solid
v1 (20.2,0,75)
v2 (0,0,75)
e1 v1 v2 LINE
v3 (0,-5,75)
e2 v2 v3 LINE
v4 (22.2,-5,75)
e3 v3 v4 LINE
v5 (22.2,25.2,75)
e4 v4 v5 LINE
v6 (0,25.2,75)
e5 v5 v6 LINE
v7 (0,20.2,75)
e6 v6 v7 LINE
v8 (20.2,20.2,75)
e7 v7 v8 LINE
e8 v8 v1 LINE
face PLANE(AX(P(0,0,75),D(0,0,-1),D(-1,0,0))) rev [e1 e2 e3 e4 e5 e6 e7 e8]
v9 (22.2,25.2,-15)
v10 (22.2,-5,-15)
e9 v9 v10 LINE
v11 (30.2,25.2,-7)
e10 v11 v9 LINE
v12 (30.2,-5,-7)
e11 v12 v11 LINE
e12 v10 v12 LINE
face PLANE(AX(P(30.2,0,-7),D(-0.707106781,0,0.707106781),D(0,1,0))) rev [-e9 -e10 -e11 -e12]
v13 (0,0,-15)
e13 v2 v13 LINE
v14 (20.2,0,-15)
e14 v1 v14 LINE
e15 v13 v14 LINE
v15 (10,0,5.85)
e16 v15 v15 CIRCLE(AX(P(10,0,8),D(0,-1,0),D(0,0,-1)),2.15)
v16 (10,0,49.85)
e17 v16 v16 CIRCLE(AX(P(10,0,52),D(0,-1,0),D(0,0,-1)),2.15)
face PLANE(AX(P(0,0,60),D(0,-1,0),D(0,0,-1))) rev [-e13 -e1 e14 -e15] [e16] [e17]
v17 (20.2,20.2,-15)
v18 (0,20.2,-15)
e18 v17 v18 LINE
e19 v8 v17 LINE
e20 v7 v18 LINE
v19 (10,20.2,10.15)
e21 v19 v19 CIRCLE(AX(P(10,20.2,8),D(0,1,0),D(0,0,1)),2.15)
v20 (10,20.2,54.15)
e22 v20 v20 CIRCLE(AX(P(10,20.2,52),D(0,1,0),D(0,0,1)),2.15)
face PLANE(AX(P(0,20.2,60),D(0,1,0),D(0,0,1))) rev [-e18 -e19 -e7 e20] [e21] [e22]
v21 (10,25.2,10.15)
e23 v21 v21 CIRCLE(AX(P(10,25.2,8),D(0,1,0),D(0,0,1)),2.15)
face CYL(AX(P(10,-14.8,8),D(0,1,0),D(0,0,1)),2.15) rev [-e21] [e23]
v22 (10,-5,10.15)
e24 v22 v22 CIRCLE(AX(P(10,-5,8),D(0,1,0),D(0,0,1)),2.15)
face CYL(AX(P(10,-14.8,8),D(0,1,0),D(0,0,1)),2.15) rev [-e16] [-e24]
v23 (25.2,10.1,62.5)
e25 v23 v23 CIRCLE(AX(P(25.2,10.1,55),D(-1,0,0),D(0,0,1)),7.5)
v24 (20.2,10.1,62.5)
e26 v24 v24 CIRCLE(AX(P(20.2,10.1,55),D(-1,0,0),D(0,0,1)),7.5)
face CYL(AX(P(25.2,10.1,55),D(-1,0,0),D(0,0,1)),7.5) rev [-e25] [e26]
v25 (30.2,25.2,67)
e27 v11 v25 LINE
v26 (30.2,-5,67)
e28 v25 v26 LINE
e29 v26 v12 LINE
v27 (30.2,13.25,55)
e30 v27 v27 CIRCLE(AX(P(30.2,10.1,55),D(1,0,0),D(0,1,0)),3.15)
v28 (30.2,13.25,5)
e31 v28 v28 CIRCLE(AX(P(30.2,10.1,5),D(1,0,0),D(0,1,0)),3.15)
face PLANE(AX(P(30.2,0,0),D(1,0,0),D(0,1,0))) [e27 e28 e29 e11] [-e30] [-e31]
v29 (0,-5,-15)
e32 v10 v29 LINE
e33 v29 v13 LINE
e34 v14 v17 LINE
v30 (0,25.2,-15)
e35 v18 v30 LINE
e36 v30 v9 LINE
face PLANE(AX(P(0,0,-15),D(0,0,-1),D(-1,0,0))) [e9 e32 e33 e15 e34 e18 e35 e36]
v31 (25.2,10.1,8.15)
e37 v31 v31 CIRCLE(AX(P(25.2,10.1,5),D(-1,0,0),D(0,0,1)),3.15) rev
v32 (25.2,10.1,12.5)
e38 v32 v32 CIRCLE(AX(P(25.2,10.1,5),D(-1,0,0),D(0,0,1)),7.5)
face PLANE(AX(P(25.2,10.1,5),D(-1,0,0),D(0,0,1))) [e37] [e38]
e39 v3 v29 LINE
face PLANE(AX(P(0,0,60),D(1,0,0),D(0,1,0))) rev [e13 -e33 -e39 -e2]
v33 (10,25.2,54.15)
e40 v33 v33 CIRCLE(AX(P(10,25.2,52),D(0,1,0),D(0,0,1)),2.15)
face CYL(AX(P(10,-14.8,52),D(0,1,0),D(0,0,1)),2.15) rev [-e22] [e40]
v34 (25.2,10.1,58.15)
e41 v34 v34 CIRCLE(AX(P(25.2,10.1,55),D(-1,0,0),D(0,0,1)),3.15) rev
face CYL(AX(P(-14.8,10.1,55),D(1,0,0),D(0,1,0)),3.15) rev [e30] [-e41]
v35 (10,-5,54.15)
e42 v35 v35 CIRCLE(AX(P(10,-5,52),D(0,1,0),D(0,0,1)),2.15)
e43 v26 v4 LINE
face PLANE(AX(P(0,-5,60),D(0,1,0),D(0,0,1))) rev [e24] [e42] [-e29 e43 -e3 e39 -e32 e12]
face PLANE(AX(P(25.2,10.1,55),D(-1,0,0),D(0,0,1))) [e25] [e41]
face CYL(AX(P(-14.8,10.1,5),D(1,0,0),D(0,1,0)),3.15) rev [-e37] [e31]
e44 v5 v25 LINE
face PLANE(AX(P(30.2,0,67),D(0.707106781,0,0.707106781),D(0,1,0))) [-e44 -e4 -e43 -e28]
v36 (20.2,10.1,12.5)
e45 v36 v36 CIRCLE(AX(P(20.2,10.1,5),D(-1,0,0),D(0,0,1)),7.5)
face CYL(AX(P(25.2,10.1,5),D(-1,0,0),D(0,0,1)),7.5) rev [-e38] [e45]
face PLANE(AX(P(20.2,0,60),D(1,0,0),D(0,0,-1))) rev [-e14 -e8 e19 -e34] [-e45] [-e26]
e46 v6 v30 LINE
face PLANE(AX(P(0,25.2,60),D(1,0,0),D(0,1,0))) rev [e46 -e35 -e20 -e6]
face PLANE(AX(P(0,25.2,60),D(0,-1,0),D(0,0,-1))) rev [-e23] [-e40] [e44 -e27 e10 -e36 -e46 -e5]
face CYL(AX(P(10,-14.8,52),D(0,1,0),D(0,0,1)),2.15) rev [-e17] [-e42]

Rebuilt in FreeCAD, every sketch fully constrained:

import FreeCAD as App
import Part
import Sketcher


def edges_at(feature, points):
    """Names of the edges that pass closest to the given points."""
    edges = feature.Shape.Edges
    near = lambda p: min(range(len(edges)), key=lambda i: edges[i].distToShape(Part.Vertex(*p))[0])
    return sorted({f"Edge{near(p) + 1}" for p in points})

doc = App.newDocument("Part")
body = doc.addObject("PartDesign::Body", "Body")

# Sketch on XY plane
sketch1 = doc.addObject("Sketcher::SketchObject", "Sketch")
body.addObject(sketch1)
sketch1.AttachmentSupport = (doc.XY_Plane, [""])
sketch1.MapMode = "FlatFace"
sketch1.addGeometry(Part.LineSegment(App.Vector(0, 0, 0), App.Vector(0, -5, 0)), False)
sketch1.addGeometry(Part.LineSegment(App.Vector(0, -5, 0), App.Vector(25, -5, 0)), False)
sketch1.addGeometry(Part.LineSegment(App.Vector(25, -5, 0), App.Vector(25, 25, 0)), False)
sketch1.addGeometry(Part.LineSegment(App.Vector(25, 25, 0), App.Vector(0, 25, 0)), False)
sketch1.addGeometry(Part.LineSegment(App.Vector(0, 25, 0), App.Vector(0, 20, 0)), False)
sketch1.addGeometry(Part.LineSegment(App.Vector(0, 20, 0), App.Vector(20, 20, 0)), False)
sketch1.addGeometry(Part.LineSegment(App.Vector(20, 20, 0), App.Vector(20, 0, 0)), False)
sketch1.addGeometry(Part.LineSegment(App.Vector(20, 0, 0), App.Vector(0, 0, 0)), False)
sketch1.addConstraint(Sketcher.Constraint("Coincident", 0, 2, 1, 1))
sketch1.addConstraint(Sketcher.Constraint("Coincident", 1, 2, 2, 1))
sketch1.addConstraint(Sketcher.Constraint("Coincident", 2, 2, 3, 1))
sketch1.addConstraint(Sketcher.Constraint("Coincident", 3, 2, 4, 1))
sketch1.addConstraint(Sketcher.Constraint("Coincident", 4, 2, 5, 1))
sketch1.addConstraint(Sketcher.Constraint("Coincident", 5, 2, 6, 1))
sketch1.addConstraint(Sketcher.Constraint("Coincident", 6, 2, 7, 1))
sketch1.addConstraint(Sketcher.Constraint("Coincident", 7, 2, 0, 1))
sketch1.addConstraint(Sketcher.Constraint("Vertical", 0))
sketch1.addConstraint(Sketcher.Constraint("Horizontal", 1))
sketch1.addConstraint(Sketcher.Constraint("Vertical", 2))
sketch1.addConstraint(Sketcher.Constraint("Horizontal", 3))
sketch1.addConstraint(Sketcher.Constraint("Vertical", 4))
sketch1.addConstraint(Sketcher.Constraint("Horizontal", 5))
sketch1.addConstraint(Sketcher.Constraint("Vertical", 6))
sketch1.addConstraint(Sketcher.Constraint("Horizontal", 7))
sketch1.addConstraint(Sketcher.Constraint("Coincident", 7, 2, -1, 1))
sketch1.addConstraint(Sketcher.Constraint("PointOnObject", 3, 2, -2))
sketch1.addConstraint(Sketcher.Constraint("Equal", 0, 4))
sketch1.addConstraint(Sketcher.Constraint("Equal", 7, 6))
sketch1.addConstraint(Sketcher.Constraint("DistanceY", 0, 2, 0, 1, 5.0))
sketch1.addConstraint(Sketcher.Constraint("DistanceX", 1, 1, 1, 2, 25.2))
sketch1.addConstraint(Sketcher.Constraint("DistanceX", 5, 1, 5, 2, 20.2))
pad1 = doc.addObject("PartDesign::Pad", "Pad")
body.addObject(pad1)
pad1.Profile = sketch1
pad1.Length = 60

# Sketch on XZ plane
sketch2 = doc.addObject("Sketcher::SketchObject", "Sketch001")
body.addObject(sketch2)
sketch2.AttachmentSupport = (doc.XZ_Plane, [""])
sketch2.MapMode = "FlatFace"
sketch2.AttachmentOffset = App.Placement(App.Vector(0, 0, -25.2), App.Rotation())
sketch2.addGeometry(Part.Circle(App.Vector(10, 8, 0), App.Vector(0, 0, 1), 2.1), False)
sketch2.addGeometry(Part.Circle(App.Vector(10, 52, 0), App.Vector(0, 0, 1), 2.1), False)
sketch2.addConstraint(Sketcher.Constraint("Equal", 0, 1))
sketch2.addConstraint(Sketcher.Constraint("Vertical", 0, 3, 1, 3))
sketch2.addConstraint(Sketcher.Constraint("Diameter", 0, 4.3))
sketch2.addConstraint(Sketcher.Constraint("DistanceX", -1, 1, 0, 3, 10.0))
sketch2.addConstraint(Sketcher.Constraint("DistanceY", -1, 1, 0, 3, 8.0))
sketch2.addConstraint(Sketcher.Constraint("DistanceY", -1, 1, 1, 3, 52.0))
pocket1 = doc.addObject("PartDesign::Pocket", "Pocket")
body.addObject(pocket1)
pocket1.Profile = sketch2
pocket1.Length = 40
pocket1.Reversed = True

# Sketch on YZ plane
sketch3 = doc.addObject("Sketcher::SketchObject", "Sketch002")
body.addObject(sketch3)
sketch3.AttachmentSupport = (doc.YZ_Plane, [""])
sketch3.MapMode = "FlatFace"
sketch3.AttachmentOffset = App.Placement(App.Vector(0, 0, 25.2), App.Rotation())
sketch3.addGeometry(Part.Circle(App.Vector(10.1, 55, 0), App.Vector(0, 0, 1), 3.1), False)
sketch3.addGeometry(Part.Circle(App.Vector(10.1, 5, 0), App.Vector(0, 0, 1), 3.1), False)
sketch3.addConstraint(Sketcher.Constraint("Equal", 0, 1))
sketch3.addConstraint(Sketcher.Constraint("Vertical", 0, 3, 1, 3))
sketch3.addConstraint(Sketcher.Constraint("Diameter", 0, 6.3))
sketch3.addConstraint(Sketcher.Constraint("DistanceY", -1, 1, 0, 3, 55.0))
sketch3.addConstraint(Sketcher.Constraint("DistanceY", -1, 1, 1, 3, 5.0))
sketch3.addConstraint(Sketcher.Constraint("DistanceX", -1, 1, 0, 3, 10.1))
pocket2 = doc.addObject("PartDesign::Pocket", "Pocket001")
body.addObject(pocket2)
pocket2.Profile = sketch3
pocket2.Length = 40

# Sketch on XY plane
sketch4 = doc.addObject("Sketcher::SketchObject", "Sketch003")
body.addObject(sketch4)
sketch4.AttachmentSupport = (doc.XY_Plane, [""])
sketch4.MapMode = "FlatFace"
sketch4.addGeometry(Part.LineSegment(App.Vector(20, 20, 0), App.Vector(0, 20, 0)), False)
sketch4.addGeometry(Part.LineSegment(App.Vector(0, 20, 0), App.Vector(0, 25, 0)), False)
sketch4.addGeometry(Part.LineSegment(App.Vector(0, 25, 0), App.Vector(25, 25, 0)), False)
sketch4.addGeometry(Part.LineSegment(App.Vector(25, 25, 0), App.Vector(25, -5, 0)), False)
sketch4.addGeometry(Part.LineSegment(App.Vector(25, -5, 0), App.Vector(0, -5, 0)), False)
sketch4.addGeometry(Part.LineSegment(App.Vector(0, -5, 0), App.Vector(0, 0, 0)), False)
sketch4.addGeometry(Part.LineSegment(App.Vector(0, 0, 0), App.Vector(20, 0, 0)), False)
sketch4.addGeometry(Part.LineSegment(App.Vector(20, 0, 0), App.Vector(20, 20, 0)), False)
sketch4.addConstraint(Sketcher.Constraint("Coincident", 0, 2, 1, 1))
sketch4.addConstraint(Sketcher.Constraint("Coincident", 1, 2, 2, 1))
sketch4.addConstraint(Sketcher.Constraint("Coincident", 2, 2, 3, 1))
sketch4.addConstraint(Sketcher.Constraint("Coincident", 3, 2, 4, 1))
sketch4.addConstraint(Sketcher.Constraint("Coincident", 4, 2, 5, 1))
sketch4.addConstraint(Sketcher.Constraint("Coincident", 5, 2, 6, 1))
sketch4.addConstraint(Sketcher.Constraint("Coincident", 6, 2, 7, 1))
sketch4.addConstraint(Sketcher.Constraint("Coincident", 7, 2, 0, 1))
sketch4.addConstraint(Sketcher.Constraint("Horizontal", 0))
sketch4.addConstraint(Sketcher.Constraint("Vertical", 1))
sketch4.addConstraint(Sketcher.Constraint("Horizontal", 2))
sketch4.addConstraint(Sketcher.Constraint("Vertical", 3))
sketch4.addConstraint(Sketcher.Constraint("Horizontal", 4))
sketch4.addConstraint(Sketcher.Constraint("Vertical", 5))
sketch4.addConstraint(Sketcher.Constraint("Horizontal", 6))
sketch4.addConstraint(Sketcher.Constraint("Vertical", 7))
sketch4.addConstraint(Sketcher.Constraint("Coincident", 5, 2, -1, 1))
sketch4.addConstraint(Sketcher.Constraint("PointOnObject", 0, 2, -2))
sketch4.addConstraint(Sketcher.Constraint("Equal", 1, 5))
sketch4.addConstraint(Sketcher.Constraint("Equal", 6, 7))
sketch4.addConstraint(Sketcher.Constraint("DistanceY", 1, 1, 1, 2, 5.0))
sketch4.addConstraint(Sketcher.Constraint("DistanceX", 0, 2, 0, 1, 20.2))
sketch4.addConstraint(Sketcher.Constraint("DistanceX", 2, 1, 2, 2, 25.2))
pad2 = doc.addObject("PartDesign::Pad", "Pad001")
body.addObject(pad2)
pad2.Profile = sketch4
pad2.Length = 15
pad2.Reversed = True

# Sketch on XY plane
sketch5 = doc.addObject("Sketcher::SketchObject", "Sketch004")
body.addObject(sketch5)
sketch5.AttachmentSupport = (doc.XY_Plane, [""])
sketch5.MapMode = "FlatFace"
sketch5.AttachmentOffset = App.Placement(App.Vector(0, 0, 60), App.Rotation())
sketch5.addGeometry(Part.LineSegment(App.Vector(20, 0, 0), App.Vector(0, 0, 0)), False)
sketch5.addGeometry(Part.LineSegment(App.Vector(0, 0, 0), App.Vector(0, -5, 0)), False)
sketch5.addGeometry(Part.LineSegment(App.Vector(0, -5, 0), App.Vector(25, -5, 0)), False)
sketch5.addGeometry(Part.LineSegment(App.Vector(25, -5, 0), App.Vector(25, 25, 0)), False)
sketch5.addGeometry(Part.LineSegment(App.Vector(25, 25, 0), App.Vector(0, 25, 0)), False)
sketch5.addGeometry(Part.LineSegment(App.Vector(0, 25, 0), App.Vector(0, 20, 0)), False)
sketch5.addGeometry(Part.LineSegment(App.Vector(0, 20, 0), App.Vector(20, 20, 0)), False)
sketch5.addGeometry(Part.LineSegment(App.Vector(20, 20, 0), App.Vector(20, 0, 0)), False)
sketch5.addConstraint(Sketcher.Constraint("Coincident", 0, 2, 1, 1))
sketch5.addConstraint(Sketcher.Constraint("Coincident", 1, 2, 2, 1))
sketch5.addConstraint(Sketcher.Constraint("Coincident", 2, 2, 3, 1))
sketch5.addConstraint(Sketcher.Constraint("Coincident", 3, 2, 4, 1))
sketch5.addConstraint(Sketcher.Constraint("Coincident", 4, 2, 5, 1))
sketch5.addConstraint(Sketcher.Constraint("Coincident", 5, 2, 6, 1))
sketch5.addConstraint(Sketcher.Constraint("Coincident", 6, 2, 7, 1))
sketch5.addConstraint(Sketcher.Constraint("Coincident", 7, 2, 0, 1))
sketch5.addConstraint(Sketcher.Constraint("Horizontal", 0))
sketch5.addConstraint(Sketcher.Constraint("Vertical", 1))
sketch5.addConstraint(Sketcher.Constraint("Horizontal", 2))
sketch5.addConstraint(Sketcher.Constraint("Vertical", 3))
sketch5.addConstraint(Sketcher.Constraint("Horizontal", 4))
sketch5.addConstraint(Sketcher.Constraint("Vertical", 5))
sketch5.addConstraint(Sketcher.Constraint("Horizontal", 6))
sketch5.addConstraint(Sketcher.Constraint("Vertical", 7))
sketch5.addConstraint(Sketcher.Constraint("Coincident", 0, 2, -1, 1))
sketch5.addConstraint(Sketcher.Constraint("PointOnObject", 4, 2, -2))
sketch5.addConstraint(Sketcher.Constraint("Equal", 1, 5))
sketch5.addConstraint(Sketcher.Constraint("Equal", 6, 7))
sketch5.addConstraint(Sketcher.Constraint("DistanceY", 1, 2, 1, 1, 5.0))
sketch5.addConstraint(Sketcher.Constraint("DistanceX", 0, 2, 0, 1, 20.2))
sketch5.addConstraint(Sketcher.Constraint("DistanceX", 2, 1, 2, 2, 25.2))
pad3 = doc.addObject("PartDesign::Pad", "Pad002")
body.addObject(pad3)
pad3.Profile = sketch5
pad3.Length = 15

# Sketch on YZ plane
sketch6 = doc.addObject("Sketcher::SketchObject", "Sketch005")
body.addObject(sketch6)
sketch6.AttachmentSupport = (doc.YZ_Plane, [""])
sketch6.MapMode = "FlatFace"
sketch6.AttachmentOffset = App.Placement(App.Vector(0, 0, 30.2), App.Rotation())
sketch6.addGeometry(Part.LineSegment(App.Vector(25.2, 75, 0), App.Vector(-5, 75, 0)), False)
sketch6.addGeometry(Part.LineSegment(App.Vector(-5, 75, 0), App.Vector(-5, -15, 0)), False)
sketch6.addGeometry(Part.LineSegment(App.Vector(-5, -15, 0), App.Vector(25.2, -15, 0)), False)
sketch6.addGeometry(Part.LineSegment(App.Vector(25.2, -15, 0), App.Vector(25.2, 75, 0)), False)
sketch6.addGeometry(Part.Circle(App.Vector(10.1, 55, 0), App.Vector(0, 0, 1), 3.1), False)
sketch6.addGeometry(Part.Circle(App.Vector(10.1, 5, 0), App.Vector(0, 0, 1), 3.1), False)
sketch6.addConstraint(Sketcher.Constraint("Coincident", 0, 2, 1, 1))
sketch6.addConstraint(Sketcher.Constraint("Coincident", 1, 2, 2, 1))
sketch6.addConstraint(Sketcher.Constraint("Coincident", 2, 2, 3, 1))
sketch6.addConstraint(Sketcher.Constraint("Coincident", 3, 2, 0, 1))
sketch6.addConstraint(Sketcher.Constraint("Horizontal", 0))
sketch6.addConstraint(Sketcher.Constraint("Vertical", 1))
sketch6.addConstraint(Sketcher.Constraint("Horizontal", 2))
sketch6.addConstraint(Sketcher.Constraint("Vertical", 3))
sketch6.addConstraint(Sketcher.Constraint("Equal", 4, 5))
sketch6.addConstraint(Sketcher.Constraint("Vertical", 4, 3, 5, 3))
sketch6.addConstraint(Sketcher.Constraint("Diameter", 4, 6.3))
sketch6.addConstraint(Sketcher.Constraint("DistanceY", 1, 2, 1, 1, 90.0))
sketch6.addConstraint(Sketcher.Constraint("DistanceX", 0, 2, 0, 1, 30.2))
sketch6.addConstraint(Sketcher.Constraint("DistanceY", -1, 1, 4, 3, 55.0))
sketch6.addConstraint(Sketcher.Constraint("DistanceY", -1, 1, 5, 3, 5.0))
sketch6.addConstraint(Sketcher.Constraint("DistanceX", 0, 2, -1, 1, 5.0))
sketch6.addConstraint(Sketcher.Constraint("DistanceY", -1, 1, 0, 2, 75.0))
sketch6.addConstraint(Sketcher.Constraint("DistanceX", -1, 1, 4, 3, 10.1))
pad4 = doc.addObject("PartDesign::Pad", "Pad003")
body.addObject(pad4)
pad4.Profile = sketch6
pad4.Length = 5
pad4.Reversed = True
doc.recompute()

chamfer = doc.addObject("PartDesign::Chamfer", "Chamfer")
body.addObject(chamfer)
chamfer.Base = (pad4, edges_at(pad4, [(30.2, 10.1, -15), (30.2, 10.1, 75)]))
chamfer.Size = 8

# Sketch on YZ plane
sketch7 = doc.addObject("Sketcher::SketchObject", "Sketch006")
body.addObject(sketch7)
sketch7.AttachmentSupport = (doc.YZ_Plane, [""])
sketch7.MapMode = "FlatFace"
sketch7.AttachmentOffset = App.Placement(App.Vector(0, 0, 20.2), App.Rotation())
sketch7.addGeometry(Part.Circle(App.Vector(10, 5, 0), App.Vector(0, 0, 1), 8), False)
sketch7.addGeometry(Part.Circle(App.Vector(10, 55, 0), App.Vector(0, 0, 1), 8), False)
sketch7.addConstraint(Sketcher.Constraint("Equal", 0, 1))
sketch7.addConstraint(Sketcher.Constraint("Vertical", 0, 3, 1, 3))
sketch7.addConstraint(Sketcher.Constraint("Diameter", 0, 15.0))
sketch7.addConstraint(Sketcher.Constraint("DistanceY", -1, 1, 0, 3, 5.0))
sketch7.addConstraint(Sketcher.Constraint("DistanceY", -1, 1, 1, 3, 55.0))
sketch7.addConstraint(Sketcher.Constraint("DistanceX", -1, 1, 0, 3, 10.1))
pocket3 = doc.addObject("PartDesign::Pocket", "Pocket002")
body.addObject(pocket3)
pocket3.Profile = sketch7
pocket3.Length = 5
pocket3.Reversed = True

doc.recompute()
